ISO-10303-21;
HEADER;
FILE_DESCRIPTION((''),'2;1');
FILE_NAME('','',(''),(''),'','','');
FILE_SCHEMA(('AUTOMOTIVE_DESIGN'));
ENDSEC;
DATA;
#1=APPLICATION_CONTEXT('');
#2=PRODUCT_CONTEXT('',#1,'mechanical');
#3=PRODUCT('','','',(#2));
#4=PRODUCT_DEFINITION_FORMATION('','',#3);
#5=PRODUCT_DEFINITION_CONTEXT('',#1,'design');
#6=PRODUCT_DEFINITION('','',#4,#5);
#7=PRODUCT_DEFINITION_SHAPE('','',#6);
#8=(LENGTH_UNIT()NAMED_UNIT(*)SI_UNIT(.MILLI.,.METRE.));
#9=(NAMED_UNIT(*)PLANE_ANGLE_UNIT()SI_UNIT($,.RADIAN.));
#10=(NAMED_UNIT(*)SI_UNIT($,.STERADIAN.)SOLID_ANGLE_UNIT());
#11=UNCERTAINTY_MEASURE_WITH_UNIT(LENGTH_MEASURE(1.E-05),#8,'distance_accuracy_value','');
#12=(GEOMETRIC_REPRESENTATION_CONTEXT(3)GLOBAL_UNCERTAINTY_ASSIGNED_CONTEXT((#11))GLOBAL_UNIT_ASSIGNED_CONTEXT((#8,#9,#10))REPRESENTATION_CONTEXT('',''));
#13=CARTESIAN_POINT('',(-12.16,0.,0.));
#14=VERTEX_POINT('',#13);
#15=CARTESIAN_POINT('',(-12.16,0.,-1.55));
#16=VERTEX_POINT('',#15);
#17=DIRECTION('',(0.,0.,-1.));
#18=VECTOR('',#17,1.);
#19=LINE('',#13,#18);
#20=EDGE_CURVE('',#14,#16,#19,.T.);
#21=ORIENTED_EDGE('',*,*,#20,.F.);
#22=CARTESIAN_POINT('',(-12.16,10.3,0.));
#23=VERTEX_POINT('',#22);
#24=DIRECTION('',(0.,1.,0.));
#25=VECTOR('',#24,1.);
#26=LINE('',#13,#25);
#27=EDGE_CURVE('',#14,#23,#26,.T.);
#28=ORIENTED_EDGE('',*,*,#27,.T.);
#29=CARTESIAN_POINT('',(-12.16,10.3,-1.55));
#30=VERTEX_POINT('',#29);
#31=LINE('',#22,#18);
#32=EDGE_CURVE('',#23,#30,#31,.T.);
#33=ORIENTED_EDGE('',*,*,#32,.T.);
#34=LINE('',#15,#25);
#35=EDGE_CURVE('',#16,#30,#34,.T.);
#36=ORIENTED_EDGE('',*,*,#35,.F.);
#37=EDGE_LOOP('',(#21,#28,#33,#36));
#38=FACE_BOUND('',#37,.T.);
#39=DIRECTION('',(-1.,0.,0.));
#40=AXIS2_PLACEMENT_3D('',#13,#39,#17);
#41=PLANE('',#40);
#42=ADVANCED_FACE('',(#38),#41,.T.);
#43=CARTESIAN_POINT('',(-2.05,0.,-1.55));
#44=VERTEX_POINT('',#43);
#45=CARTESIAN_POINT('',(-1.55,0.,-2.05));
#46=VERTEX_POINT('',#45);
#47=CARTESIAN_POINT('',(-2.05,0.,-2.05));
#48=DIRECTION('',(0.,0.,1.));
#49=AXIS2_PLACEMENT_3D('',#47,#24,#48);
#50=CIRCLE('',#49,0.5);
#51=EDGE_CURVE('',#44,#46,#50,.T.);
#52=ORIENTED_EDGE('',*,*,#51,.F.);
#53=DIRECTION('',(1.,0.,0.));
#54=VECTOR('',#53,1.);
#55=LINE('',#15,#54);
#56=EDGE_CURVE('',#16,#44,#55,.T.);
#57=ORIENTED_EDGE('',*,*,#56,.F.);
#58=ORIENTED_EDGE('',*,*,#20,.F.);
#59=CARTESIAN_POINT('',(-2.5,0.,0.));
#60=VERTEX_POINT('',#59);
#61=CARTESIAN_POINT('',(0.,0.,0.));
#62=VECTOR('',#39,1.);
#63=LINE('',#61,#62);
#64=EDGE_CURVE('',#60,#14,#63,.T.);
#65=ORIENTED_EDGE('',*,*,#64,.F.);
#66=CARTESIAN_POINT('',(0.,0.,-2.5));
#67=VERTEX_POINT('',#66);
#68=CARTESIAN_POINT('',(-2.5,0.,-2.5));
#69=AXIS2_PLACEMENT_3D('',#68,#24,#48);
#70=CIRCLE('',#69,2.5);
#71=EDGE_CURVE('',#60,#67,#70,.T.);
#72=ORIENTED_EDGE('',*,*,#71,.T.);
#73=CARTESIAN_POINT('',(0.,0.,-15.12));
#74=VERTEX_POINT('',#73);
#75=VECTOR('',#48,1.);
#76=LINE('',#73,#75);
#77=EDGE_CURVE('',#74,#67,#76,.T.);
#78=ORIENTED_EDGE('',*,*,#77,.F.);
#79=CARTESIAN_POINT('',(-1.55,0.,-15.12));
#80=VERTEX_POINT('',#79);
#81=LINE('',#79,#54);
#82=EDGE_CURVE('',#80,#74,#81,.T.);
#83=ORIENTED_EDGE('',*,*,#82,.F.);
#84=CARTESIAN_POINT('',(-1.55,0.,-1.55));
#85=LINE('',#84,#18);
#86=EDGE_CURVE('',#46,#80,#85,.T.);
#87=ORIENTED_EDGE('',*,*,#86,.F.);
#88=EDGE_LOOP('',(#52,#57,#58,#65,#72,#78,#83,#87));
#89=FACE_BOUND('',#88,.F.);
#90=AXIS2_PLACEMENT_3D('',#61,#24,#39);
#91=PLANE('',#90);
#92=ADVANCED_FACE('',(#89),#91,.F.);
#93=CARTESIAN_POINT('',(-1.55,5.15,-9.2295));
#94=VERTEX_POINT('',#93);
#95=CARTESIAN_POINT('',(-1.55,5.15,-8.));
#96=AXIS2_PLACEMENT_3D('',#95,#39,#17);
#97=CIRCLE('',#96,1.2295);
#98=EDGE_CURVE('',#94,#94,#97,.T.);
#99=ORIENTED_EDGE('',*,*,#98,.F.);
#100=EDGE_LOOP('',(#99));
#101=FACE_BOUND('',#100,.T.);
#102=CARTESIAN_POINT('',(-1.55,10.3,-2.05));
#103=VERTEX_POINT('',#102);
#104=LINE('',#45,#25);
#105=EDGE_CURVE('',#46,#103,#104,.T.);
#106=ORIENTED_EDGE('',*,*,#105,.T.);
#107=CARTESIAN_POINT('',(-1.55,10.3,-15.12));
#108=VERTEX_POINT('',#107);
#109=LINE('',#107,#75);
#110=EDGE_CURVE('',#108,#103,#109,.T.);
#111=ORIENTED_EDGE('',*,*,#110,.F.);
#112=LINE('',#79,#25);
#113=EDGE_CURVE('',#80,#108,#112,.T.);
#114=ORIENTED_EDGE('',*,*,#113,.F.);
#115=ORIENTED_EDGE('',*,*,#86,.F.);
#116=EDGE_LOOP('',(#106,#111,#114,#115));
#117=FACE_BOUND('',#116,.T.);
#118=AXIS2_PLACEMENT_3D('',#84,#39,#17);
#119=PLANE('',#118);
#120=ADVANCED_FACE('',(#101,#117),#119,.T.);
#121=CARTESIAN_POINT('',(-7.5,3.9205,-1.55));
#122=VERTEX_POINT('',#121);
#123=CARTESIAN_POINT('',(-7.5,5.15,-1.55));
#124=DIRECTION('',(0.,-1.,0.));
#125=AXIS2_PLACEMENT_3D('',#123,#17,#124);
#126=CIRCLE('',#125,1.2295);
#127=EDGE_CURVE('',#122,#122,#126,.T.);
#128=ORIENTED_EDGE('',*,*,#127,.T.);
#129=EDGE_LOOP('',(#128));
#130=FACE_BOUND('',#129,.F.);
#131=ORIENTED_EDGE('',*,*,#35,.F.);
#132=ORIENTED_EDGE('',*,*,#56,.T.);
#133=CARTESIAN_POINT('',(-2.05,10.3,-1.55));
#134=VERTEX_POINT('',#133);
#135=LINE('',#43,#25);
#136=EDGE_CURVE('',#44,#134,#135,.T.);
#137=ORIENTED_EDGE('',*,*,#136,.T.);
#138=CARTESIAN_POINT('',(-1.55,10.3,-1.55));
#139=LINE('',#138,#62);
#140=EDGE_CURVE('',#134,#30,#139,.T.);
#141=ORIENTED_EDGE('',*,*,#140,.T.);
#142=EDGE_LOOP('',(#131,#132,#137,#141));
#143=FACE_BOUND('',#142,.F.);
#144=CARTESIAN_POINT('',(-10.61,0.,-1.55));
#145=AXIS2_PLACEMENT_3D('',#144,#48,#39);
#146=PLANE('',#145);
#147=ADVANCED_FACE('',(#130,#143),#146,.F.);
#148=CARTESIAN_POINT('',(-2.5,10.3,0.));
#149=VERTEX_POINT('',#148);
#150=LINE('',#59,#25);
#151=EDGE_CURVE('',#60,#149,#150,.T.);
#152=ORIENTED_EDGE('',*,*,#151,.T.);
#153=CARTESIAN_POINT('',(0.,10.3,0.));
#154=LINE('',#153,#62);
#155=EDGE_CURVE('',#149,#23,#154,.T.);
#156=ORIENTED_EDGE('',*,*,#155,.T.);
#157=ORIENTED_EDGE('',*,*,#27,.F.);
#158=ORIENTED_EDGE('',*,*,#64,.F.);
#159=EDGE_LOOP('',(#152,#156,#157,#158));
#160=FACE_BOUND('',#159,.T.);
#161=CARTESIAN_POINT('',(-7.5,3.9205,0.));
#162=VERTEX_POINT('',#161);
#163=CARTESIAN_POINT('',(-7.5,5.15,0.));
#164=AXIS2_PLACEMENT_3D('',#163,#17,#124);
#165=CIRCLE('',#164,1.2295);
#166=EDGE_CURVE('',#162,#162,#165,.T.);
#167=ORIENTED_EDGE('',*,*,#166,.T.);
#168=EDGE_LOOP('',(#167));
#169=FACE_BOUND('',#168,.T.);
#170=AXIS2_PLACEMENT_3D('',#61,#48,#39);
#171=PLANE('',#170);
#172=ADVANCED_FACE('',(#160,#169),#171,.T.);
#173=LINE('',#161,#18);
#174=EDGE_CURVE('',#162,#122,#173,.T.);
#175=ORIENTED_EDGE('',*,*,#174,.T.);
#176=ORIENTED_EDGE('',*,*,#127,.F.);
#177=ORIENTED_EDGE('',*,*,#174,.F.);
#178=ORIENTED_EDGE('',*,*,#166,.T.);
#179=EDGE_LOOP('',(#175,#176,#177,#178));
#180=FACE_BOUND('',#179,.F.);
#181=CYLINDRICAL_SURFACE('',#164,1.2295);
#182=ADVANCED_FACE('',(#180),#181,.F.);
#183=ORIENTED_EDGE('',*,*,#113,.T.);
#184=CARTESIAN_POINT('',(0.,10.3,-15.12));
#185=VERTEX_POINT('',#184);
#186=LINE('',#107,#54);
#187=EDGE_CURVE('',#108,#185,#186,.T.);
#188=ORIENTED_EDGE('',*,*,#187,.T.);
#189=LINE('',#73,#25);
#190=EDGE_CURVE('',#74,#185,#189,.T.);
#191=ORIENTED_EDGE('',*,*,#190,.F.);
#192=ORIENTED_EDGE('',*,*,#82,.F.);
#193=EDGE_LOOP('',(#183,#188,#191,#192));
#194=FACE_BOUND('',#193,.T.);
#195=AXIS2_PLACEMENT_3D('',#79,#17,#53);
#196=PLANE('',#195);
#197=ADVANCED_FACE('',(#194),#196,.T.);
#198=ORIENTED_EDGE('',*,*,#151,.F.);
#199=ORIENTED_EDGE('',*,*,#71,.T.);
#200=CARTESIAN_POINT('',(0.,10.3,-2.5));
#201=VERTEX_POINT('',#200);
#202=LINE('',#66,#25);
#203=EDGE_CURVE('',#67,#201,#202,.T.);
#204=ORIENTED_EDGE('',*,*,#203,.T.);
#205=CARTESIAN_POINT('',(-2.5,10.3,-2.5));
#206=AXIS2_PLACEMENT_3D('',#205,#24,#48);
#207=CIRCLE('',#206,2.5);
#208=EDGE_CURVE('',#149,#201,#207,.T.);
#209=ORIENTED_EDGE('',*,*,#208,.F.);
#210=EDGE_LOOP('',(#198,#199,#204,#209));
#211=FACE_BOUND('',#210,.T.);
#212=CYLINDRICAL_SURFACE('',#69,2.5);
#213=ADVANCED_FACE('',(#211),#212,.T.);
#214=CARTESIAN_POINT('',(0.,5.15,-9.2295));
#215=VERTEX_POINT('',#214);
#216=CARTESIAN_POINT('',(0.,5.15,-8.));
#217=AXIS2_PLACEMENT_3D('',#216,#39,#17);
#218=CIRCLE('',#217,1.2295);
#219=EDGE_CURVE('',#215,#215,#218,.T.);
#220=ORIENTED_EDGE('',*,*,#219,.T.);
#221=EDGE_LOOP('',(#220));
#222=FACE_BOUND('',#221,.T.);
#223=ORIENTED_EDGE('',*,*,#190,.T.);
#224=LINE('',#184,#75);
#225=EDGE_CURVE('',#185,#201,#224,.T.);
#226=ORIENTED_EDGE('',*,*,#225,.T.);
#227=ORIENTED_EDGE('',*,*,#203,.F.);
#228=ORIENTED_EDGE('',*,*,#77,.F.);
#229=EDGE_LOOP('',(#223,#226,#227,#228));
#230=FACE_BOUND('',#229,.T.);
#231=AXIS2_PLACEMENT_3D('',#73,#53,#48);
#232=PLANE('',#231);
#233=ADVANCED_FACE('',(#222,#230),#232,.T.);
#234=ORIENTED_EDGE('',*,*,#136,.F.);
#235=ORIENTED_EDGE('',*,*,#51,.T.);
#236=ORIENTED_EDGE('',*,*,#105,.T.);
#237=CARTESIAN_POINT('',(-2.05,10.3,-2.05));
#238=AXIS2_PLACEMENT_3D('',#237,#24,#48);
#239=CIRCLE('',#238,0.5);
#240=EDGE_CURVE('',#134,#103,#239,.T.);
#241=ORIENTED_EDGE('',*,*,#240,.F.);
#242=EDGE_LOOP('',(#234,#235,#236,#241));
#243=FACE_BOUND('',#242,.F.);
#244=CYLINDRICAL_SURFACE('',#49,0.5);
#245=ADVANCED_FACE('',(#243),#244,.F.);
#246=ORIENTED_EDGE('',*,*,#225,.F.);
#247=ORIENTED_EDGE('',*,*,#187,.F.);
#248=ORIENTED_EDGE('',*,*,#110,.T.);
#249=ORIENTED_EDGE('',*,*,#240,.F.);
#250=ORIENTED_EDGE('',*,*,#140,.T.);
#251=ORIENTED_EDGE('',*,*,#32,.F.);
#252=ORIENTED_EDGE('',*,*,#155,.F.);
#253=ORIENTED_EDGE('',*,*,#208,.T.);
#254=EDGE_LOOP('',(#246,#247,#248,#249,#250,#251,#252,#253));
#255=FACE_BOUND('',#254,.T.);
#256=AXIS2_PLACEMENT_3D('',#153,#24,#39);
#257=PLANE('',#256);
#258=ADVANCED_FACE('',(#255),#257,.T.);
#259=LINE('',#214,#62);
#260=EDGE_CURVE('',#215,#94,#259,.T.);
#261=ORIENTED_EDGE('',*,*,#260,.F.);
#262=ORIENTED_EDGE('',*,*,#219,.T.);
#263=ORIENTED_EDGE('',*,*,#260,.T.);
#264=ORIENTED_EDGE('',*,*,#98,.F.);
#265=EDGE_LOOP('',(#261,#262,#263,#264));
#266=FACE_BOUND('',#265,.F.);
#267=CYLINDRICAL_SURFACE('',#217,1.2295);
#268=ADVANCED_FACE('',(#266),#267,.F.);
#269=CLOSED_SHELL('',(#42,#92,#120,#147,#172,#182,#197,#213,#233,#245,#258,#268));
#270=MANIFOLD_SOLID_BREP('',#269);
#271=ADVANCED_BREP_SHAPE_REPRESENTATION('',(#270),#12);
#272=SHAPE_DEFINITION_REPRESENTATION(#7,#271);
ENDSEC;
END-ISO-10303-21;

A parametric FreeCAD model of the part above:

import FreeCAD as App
import Part
import Sketcher

V = App.Vector


def edges_at(feature, points):
    """Names of the edges that pass closest to the given points."""
    edges = feature.Shape.Edges
    near = lambda p: min(range(len(edges)), key=lambda i: edges[i].distToShape(Part.Vertex(*p))[0])
    return sorted({f"Edge{near(p) + 1}" for p in points})

doc = App.newDocument("Part")
body = doc.addObject("PartDesign::Body", "Body")

sketch1 = body.newObject("Sketcher::SketchObject", "Sketch")
sketch1.AttachmentSupport = (doc.getObject("XZ_Plane"), [""])
sketch1.MapMode = "FlatFace"
sketch1.addGeometry([
    Part.LineSegment(V(-12.2, 0, 0), V(0, 0, 0)),
    Part.LineSegment(V(0, 0, 0), V(0, -15.1, 0)),
    Part.LineSegment(V(0, -15.1, 0), V(-1.6, -15.1, 0)),
    Part.LineSegment(V(-1.6, -15.1, 0), V(-1.6, -1.6, 0)),
    Part.LineSegment(V(-1.6, -1.6, 0), V(-12.2, -1.6, 0)),
    Part.LineSegment(V(-12.2, -1.6, 0), V(-12.2, 0, 0)),
], False)
sketch1.addConstraint([
    Sketcher.Constraint("Coincident", 0, 2, 1, 1),
    Sketcher.Constraint("Coincident", 1, 2, 2, 1),
    Sketcher.Constraint("Coincident", 2, 2, 3, 1),
    Sketcher.Constraint("Coincident", 3, 2, 4, 1),
    Sketcher.Constraint("Coincident", 4, 2, 5, 1),
    Sketcher.Constraint("Coincident", 5, 2, 0, 1),
    Sketcher.Constraint("Horizontal", 0),
    Sketcher.Constraint("Vertical", 1),
    Sketcher.Constraint("Horizontal", 2),
    Sketcher.Constraint("Vertical", 3),
    Sketcher.Constraint("Horizontal", 4),
    Sketcher.Constraint("Vertical", 5),
    Sketcher.Constraint("Coincident", 0, 2, -1, 1),
    Sketcher.Constraint("Equal", 2, 5),
    Sketcher.Constraint("DistanceX", 0, 1, 0, 2, 12.16),
    Sketcher.Constraint("DistanceX", 2, 2, 2, 1, 1.55),
    Sketcher.Constraint("DistanceY", 1, 2, 1, 1, 15.12),
])
pad1 = body.newObject("PartDesign::Pad", "Pad")
pad1.Profile = sketch1
pad1.Length = 10.3
pad1.Reversed = True

sketch2 = body.newObject("Sketcher::SketchObject", "Sketch001")
sketch2.AttachmentSupport = (doc.getObject("XY_Plane"), [""])
sketch2.MapMode = "FlatFace"
sketch2.addGeometry(Part.Circle(V(-7.5, 5.2, 0), V(0, 0, 1), 1.2), False)
sketch2.addConstraint([
    Sketcher.Constraint("Diameter", 0, 2.459),
    Sketcher.Constraint("DistanceX", 0, 3, -1, 1, 7.5),
    Sketcher.Constraint("DistanceY", -1, 1, 0, 3, 5.15),
])
doc.recompute()
hole = body.newObject("PartDesign::Hole", "Hole")
hole.Profile = sketch2
hole.ThreadType = "None"
hole.Diameter = 2.459
hole.DepthType = "ThroughAll"

sketch3 = body.newObject("Sketcher::SketchObject", "Sketch002")
sketch3.AttachmentSupport = (doc.getObject("YZ_Plane"), [""])
sketch3.MapMode = "FlatFace"
sketch3.addGeometry(Part.Circle(V(5.2, -8, 0), V(0, 0, 1), 1.2), False)
sketch3.addConstraint([
    Sketcher.Constraint("Diameter", 0, 2.459),
    Sketcher.Constraint("DistanceY", 0, 3, -1, 1, 8.0),
    Sketcher.Constraint("DistanceX", -1, 1, 0, 3, 5.15),
])
doc.recompute()
hole2 = body.newObject("PartDesign::Hole", "Hole001")
hole2.Profile = sketch3
hole2.ThreadType = "None"
hole2.Diameter = 2.459
hole2.DepthType = "ThroughAll"
doc.recompute()

fillet = body.newObject("PartDesign::Fillet", "Fillet")
fillet.Base = (hole2, edges_at(hole2, [(0, 5.15, 0)]))
fillet.Radius = 2.5
doc.recompute()

fillet2 = body.newObject("PartDesign::Fillet", "Fillet001")
fillet2.Base = (fillet, edges_at(fillet, [(-1.55, 5.15, -1.55)]))
fillet2.Radius = 0.5

doc.recompute()
